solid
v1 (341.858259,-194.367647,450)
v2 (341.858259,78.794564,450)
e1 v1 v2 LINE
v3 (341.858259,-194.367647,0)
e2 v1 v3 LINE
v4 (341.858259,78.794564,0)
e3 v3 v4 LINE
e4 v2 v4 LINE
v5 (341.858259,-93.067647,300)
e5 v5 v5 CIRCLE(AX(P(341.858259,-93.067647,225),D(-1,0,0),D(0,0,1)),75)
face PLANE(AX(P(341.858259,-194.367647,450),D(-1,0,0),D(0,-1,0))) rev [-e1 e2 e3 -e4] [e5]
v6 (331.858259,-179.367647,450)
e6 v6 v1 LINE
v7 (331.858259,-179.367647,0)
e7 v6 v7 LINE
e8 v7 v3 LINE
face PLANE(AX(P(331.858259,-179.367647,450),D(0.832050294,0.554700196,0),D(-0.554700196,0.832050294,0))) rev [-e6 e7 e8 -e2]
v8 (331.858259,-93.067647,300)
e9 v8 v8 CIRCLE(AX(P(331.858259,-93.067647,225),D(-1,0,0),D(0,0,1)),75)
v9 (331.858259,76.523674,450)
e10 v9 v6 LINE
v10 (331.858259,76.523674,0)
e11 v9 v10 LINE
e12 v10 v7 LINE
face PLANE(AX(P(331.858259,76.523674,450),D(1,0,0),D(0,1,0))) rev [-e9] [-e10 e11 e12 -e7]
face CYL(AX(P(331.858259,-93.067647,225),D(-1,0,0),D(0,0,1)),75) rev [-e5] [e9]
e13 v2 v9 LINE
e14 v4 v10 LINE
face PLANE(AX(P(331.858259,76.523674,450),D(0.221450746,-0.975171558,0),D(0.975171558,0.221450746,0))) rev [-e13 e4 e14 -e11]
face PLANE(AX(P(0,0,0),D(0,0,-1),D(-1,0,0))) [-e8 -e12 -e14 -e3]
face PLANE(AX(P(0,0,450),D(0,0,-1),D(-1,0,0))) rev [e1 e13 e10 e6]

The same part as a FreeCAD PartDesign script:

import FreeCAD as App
import Part
import Sketcher

doc = App.newDocument("Part")
body = doc.addObject("PartDesign::Body", "Body")

# Sketch on XY plane
sketch1 = doc.addObject("Sketcher::SketchObject", "Sketch")
body.addObject(sketch1)
sketch1.AttachmentSupport = (doc.XY_Plane, [""])
sketch1.MapMode = "FlatFace"
sketch1.addGeometry([
    Part.LineSegment(App.Vector(341.858259, 78.794564, 0), App.Vector(331.858259, 76.523674, 0)),
    Part.LineSegment(App.Vector(331.858259, 76.523674, 0), App.Vector(331.858259, -179.367647, 0)),
    Part.LineSegment(App.Vector(331.858259, -179.367647, 0), App.Vector(341.858259, -194.367647, 0)),
    Part.LineSegment(App.Vector(341.858259, -194.367647, 0), App.Vector(341.858259, 78.794564, 0)),
], False)
sketch1.addConstraint([
    Sketcher.Constraint("Coincident", 0, 2, 1, 1),
    Sketcher.Constraint("Coincident", 1, 2, 2, 1),
    Sketcher.Constraint("Coincident", 2, 2, 3, 1),
    Sketcher.Constraint("Coincident", 3, 2, 0, 1),
    Sketcher.Constraint("Vertical", 1),
    Sketcher.Constraint("Vertical", 3),
    Sketcher.Constraint("DistanceX", 1, 2, 2, 2, 10.0),
    Sketcher.Constraint("DistanceY", 2, 2, 1, 2, 15.0),
    Sketcher.Constraint("DistanceY", 1, 2, 1, 1, 255.891321),
    Sketcher.Constraint("DistanceY", 3, 1, 3, 2, 273.162211),
    Sketcher.Constraint("DistanceX", -1, 1, 0, 2, 331.858259),
    Sketcher.Constraint("DistanceY", -1, 1, 0, 2, 76.523674),
])
pad1 = doc.addObject("PartDesign::Pad", "Pad")
body.addObject(pad1)
pad1.Profile = sketch1
pad1.Length = 450

# Sketch on YZ plane
sketch2 = doc.addObject("Sketcher::SketchObject", "Sketch001")
body.addObject(sketch2)
sketch2.AttachmentSupport = (doc.YZ_Plane, [""])
sketch2.MapMode = "FlatFace"
sketch2.AttachmentOffset = App.Placement(App.Vector(0, 0, 331.858259), App.Rotation())
sketch2.addGeometry(Part.Circle(App.Vector(-93.067647, 225, 0), App.Vector(0, 0, 1), 75), False)
sketch2.addConstraint([
    Sketcher.Constraint("Diameter", 0, 150.0),
    Sketcher.Constraint("DistanceY", -1, 1, 0, 3, 225.0),
    Sketcher.Constraint("DistanceX", 0, 3, -1, 1, 93.067647),
])
doc.recompute()
hole = doc.addObject("PartDesign::Hole", "Hole")
body.addObject(hole)
hole.Profile = sketch2
hole.ThreadType = "None"
hole.Diameter = 150
hole.DepthType = "ThroughAll"
hole.Reversed = True

doc.recompute()
